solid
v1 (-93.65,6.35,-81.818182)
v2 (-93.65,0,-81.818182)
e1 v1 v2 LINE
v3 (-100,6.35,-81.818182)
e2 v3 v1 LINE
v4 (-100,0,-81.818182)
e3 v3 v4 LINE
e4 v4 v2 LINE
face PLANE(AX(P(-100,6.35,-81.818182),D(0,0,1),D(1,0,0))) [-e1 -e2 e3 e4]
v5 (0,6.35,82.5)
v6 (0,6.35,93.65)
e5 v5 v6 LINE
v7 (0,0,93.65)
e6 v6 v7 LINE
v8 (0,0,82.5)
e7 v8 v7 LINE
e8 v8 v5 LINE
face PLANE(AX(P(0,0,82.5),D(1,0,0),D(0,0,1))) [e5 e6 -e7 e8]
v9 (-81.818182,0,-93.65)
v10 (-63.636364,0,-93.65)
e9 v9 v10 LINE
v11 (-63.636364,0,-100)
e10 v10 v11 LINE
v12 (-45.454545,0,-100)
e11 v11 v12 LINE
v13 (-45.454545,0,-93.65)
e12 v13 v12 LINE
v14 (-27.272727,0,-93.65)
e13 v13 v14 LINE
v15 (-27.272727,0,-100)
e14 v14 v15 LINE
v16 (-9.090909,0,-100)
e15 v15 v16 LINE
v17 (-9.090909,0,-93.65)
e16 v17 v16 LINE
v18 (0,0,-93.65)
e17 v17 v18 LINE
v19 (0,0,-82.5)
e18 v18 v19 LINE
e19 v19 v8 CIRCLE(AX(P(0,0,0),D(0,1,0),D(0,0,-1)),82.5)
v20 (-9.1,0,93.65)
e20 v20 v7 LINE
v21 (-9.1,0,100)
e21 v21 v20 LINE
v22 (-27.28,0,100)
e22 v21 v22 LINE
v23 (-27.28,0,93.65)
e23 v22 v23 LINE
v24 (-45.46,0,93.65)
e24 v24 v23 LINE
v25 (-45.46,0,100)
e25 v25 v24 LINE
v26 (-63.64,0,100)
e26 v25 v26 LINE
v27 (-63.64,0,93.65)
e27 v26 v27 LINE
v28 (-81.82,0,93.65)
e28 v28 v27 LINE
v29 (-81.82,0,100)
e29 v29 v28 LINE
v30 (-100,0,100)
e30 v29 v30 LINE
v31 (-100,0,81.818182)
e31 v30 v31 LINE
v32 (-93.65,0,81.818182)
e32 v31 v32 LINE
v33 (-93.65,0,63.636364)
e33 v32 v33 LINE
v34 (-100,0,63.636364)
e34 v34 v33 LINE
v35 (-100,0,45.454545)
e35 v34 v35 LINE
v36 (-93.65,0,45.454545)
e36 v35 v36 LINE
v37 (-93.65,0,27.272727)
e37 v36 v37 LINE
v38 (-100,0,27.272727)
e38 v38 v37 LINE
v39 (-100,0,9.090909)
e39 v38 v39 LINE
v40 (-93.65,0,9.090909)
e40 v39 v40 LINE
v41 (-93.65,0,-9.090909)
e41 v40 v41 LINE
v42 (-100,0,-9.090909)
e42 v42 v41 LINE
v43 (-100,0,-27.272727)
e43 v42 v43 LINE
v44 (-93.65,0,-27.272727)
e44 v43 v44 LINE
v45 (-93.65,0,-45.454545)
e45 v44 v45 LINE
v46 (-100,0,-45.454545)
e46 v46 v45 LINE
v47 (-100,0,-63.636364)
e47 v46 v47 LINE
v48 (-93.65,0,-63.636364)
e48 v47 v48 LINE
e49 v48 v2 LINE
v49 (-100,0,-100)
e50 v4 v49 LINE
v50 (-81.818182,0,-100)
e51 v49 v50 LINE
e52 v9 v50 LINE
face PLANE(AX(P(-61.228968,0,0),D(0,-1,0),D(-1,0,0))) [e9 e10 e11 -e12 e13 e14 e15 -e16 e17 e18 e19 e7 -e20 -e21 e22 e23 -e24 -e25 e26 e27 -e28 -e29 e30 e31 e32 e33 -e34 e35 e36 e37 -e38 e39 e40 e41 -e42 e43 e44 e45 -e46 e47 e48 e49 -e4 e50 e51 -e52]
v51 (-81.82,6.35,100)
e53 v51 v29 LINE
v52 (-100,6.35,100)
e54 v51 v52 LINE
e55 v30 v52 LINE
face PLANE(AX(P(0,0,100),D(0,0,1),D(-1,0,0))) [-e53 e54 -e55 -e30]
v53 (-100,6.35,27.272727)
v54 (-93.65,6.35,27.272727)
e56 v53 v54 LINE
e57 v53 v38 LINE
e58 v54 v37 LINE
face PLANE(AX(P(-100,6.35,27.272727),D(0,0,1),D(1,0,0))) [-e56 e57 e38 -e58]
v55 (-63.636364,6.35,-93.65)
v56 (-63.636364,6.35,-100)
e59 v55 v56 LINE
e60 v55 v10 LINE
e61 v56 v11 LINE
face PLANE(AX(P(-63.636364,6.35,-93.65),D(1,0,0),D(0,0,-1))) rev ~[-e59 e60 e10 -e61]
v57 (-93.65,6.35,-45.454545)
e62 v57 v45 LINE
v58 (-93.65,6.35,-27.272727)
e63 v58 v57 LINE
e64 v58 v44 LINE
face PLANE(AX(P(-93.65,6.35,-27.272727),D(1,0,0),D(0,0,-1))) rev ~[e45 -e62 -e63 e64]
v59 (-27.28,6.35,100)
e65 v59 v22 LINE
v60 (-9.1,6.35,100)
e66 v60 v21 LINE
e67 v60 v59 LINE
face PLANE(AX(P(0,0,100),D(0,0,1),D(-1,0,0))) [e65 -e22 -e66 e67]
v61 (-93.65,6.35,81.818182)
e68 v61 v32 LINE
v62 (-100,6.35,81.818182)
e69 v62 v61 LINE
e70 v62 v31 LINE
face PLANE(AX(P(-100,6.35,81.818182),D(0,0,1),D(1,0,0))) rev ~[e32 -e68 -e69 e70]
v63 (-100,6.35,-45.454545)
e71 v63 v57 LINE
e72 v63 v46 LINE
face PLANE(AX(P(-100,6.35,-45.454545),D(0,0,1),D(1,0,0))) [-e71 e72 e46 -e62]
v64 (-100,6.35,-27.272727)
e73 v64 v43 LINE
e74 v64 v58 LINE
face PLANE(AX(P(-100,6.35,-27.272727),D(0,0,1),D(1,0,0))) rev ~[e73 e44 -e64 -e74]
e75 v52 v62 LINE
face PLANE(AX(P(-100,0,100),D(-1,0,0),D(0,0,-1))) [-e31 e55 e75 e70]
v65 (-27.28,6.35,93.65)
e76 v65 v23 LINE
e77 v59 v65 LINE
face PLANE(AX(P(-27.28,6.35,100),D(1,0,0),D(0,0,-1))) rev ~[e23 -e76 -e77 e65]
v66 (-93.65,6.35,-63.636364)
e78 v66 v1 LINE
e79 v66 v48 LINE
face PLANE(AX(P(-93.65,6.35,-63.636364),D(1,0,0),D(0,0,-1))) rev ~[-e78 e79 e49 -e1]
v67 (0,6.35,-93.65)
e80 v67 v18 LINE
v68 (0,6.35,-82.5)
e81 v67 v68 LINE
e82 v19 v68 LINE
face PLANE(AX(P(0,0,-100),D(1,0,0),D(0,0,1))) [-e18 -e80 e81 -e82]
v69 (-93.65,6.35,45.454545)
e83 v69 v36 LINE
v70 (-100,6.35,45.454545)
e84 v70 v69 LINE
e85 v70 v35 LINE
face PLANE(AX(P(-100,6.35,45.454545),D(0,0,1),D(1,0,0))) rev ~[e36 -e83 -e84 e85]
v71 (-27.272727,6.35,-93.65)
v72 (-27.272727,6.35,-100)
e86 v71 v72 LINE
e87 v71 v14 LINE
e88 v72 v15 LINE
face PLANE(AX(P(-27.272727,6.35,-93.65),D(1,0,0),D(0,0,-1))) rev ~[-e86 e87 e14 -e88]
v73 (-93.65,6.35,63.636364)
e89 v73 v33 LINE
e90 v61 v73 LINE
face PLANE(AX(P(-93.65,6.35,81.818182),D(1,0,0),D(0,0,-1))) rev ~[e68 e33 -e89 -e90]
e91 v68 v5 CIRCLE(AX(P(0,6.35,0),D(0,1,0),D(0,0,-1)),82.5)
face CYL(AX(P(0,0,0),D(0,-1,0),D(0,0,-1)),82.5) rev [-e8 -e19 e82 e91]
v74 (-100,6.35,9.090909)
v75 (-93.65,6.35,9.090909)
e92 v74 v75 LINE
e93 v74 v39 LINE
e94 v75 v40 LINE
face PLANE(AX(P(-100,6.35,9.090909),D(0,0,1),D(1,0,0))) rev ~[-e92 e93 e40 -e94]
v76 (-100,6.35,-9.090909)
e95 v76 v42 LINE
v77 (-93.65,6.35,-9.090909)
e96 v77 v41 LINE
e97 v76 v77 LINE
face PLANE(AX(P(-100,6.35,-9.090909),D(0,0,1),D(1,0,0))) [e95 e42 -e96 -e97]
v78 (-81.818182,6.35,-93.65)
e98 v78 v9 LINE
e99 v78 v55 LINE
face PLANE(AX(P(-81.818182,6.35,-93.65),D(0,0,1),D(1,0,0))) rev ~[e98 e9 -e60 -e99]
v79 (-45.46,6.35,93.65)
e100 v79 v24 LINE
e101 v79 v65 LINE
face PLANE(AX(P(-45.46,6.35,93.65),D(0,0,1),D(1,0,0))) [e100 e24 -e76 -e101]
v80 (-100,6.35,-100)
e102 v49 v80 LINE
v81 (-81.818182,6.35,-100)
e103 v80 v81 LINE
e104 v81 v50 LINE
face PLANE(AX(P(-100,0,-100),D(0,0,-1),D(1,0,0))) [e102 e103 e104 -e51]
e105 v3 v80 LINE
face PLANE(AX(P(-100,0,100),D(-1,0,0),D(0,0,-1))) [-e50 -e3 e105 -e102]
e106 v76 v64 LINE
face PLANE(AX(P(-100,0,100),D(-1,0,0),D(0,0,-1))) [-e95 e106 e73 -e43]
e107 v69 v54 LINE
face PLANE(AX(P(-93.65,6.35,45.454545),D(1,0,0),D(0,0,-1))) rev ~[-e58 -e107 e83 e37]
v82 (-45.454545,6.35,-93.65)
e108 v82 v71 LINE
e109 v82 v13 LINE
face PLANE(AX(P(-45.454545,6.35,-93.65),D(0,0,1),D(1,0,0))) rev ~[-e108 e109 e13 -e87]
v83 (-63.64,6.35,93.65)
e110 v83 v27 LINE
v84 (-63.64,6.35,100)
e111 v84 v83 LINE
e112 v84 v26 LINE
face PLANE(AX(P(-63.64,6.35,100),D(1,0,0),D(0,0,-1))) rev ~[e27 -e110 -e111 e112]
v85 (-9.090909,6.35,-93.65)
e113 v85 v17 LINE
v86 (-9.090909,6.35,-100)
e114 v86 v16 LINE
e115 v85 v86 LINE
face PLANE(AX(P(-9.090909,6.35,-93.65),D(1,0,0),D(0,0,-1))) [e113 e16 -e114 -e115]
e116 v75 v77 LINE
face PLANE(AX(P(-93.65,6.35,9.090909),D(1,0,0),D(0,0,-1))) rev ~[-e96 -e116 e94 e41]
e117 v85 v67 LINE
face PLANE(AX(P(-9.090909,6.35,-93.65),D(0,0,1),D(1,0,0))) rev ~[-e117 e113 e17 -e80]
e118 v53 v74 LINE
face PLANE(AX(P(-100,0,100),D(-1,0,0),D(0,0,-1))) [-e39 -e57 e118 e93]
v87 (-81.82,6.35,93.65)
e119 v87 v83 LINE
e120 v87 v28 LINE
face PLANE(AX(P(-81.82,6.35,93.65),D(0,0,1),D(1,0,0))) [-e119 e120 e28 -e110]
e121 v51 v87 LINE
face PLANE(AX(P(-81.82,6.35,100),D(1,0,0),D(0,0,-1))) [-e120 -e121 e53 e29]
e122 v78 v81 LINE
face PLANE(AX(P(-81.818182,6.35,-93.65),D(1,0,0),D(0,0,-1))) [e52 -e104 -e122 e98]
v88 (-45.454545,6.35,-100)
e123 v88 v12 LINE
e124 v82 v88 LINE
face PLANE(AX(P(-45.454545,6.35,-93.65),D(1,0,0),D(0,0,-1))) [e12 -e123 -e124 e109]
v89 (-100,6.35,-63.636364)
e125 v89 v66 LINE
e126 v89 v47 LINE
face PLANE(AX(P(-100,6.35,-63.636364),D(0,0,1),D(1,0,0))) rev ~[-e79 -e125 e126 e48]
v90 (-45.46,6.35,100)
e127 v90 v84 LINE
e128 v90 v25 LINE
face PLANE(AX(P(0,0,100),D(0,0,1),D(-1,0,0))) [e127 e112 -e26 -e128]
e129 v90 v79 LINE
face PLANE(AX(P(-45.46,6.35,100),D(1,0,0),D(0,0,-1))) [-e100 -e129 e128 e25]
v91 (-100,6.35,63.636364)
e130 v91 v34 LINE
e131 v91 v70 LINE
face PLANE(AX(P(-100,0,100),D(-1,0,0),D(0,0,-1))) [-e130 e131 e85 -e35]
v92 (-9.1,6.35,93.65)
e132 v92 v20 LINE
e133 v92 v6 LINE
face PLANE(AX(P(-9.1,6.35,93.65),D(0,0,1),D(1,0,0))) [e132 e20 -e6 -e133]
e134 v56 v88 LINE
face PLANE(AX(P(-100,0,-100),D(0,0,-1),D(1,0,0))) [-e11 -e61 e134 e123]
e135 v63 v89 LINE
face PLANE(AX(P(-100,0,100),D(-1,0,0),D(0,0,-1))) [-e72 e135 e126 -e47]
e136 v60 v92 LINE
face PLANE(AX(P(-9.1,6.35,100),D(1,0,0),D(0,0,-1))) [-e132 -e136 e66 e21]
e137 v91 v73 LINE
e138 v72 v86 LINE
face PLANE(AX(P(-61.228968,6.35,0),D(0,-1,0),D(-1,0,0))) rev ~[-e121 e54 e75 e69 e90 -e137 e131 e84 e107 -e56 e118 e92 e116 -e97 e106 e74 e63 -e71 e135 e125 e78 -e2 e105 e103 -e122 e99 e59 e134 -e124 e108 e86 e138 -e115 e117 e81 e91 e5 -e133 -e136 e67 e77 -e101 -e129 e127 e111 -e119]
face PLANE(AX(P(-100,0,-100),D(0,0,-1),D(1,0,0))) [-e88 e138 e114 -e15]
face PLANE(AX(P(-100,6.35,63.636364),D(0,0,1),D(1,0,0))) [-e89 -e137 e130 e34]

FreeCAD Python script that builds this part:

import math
import FreeCAD as App
import Part
import Sketcher
Q = App.Units.Quantity

doc = App.newDocument("Part")
body = doc.addObject("PartDesign::Body", "Body")

sketch1 = body.newObject("Sketcher::SketchObject", "Sketch")
sketch1.AttachmentSupport = (doc.getObject("XZ_Plane"), [""])
sketch1.MapMode = "FlatFace"
sketch1.addGeometry(Part.LineSegment(App.Vector(0, 100, 0), App.Vector(0, 82, 0)), False)
sketch1.addGeometry(Part.ArcOfCircle(Part.Circle(App.Vector(0, 0, 0), App.Vector(0, 0, 1), 82), math.radians(90), math.radians(270)), False)
sketch1.addGeometry(Part.LineSegment(App.Vector(0, -82, 0), App.Vector(0, -100, 0)), False)
sketch1.addGeometry(Part.LineSegment(App.Vector(0, -100, 0), App.Vector(-100, -100, 0)), False)
sketch1.addGeometry(Part.LineSegment(App.Vector(-100, -100, 0), App.Vector(-100, 100, 0)), False)
sketch1.addGeometry(Part.LineSegment(App.Vector(-100, 100, 0), App.Vector(0, 100, 0)), False)
sketch1.addConstraint(Sketcher.Constraint("Coincident", 0, 2, 1, 1))
sketch1.addConstraint(Sketcher.Constraint("Coincident", 1, 2, 2, 1))
sketch1.addConstraint(Sketcher.Constraint("Coincident", 2, 2, 3, 1))
sketch1.addConstraint(Sketcher.Constraint("Coincident", 3, 2, 4, 1))
sketch1.addConstraint(Sketcher.Constraint("Coincident", 4, 2, 5, 1))
sketch1.addConstraint(Sketcher.Constraint("Coincident", 5, 2, 0, 1))
sketch1.addConstraint(Sketcher.Constraint("Vertical", 0))
sketch1.addConstraint(Sketcher.Constraint("Vertical", 2))
sketch1.addConstraint(Sketcher.Constraint("Horizontal", 3))
sketch1.addConstraint(Sketcher.Constraint("Vertical", 4))
sketch1.addConstraint(Sketcher.Constraint("Horizontal", 5))
sketch1.addConstraint(Sketcher.Constraint("Coincident", 1, 3, -1, 1))
sketch1.addConstraint(Sketcher.Constraint("Symmetric", 2, 2, 5, 2, -1, 1))
sketch1.addConstraint(Sketcher.Constraint("PointOnObject", 0, 2, -2))
sketch1.addConstraint(Sketcher.Constraint("Radius", 1, Q("82.5 mm")))
sketch1.addConstraint(Sketcher.Constraint("DistanceX", 3, 2, 3, 1, Q("100 mm")))
sketch1.addConstraint(Sketcher.Constraint("DistanceY", 4, 1, 4, 2, Q("200 mm")))
pad1 = body.newObject("PartDesign::Pad", "Pad")
pad1.Profile = sketch1
pad1.Length = 6.35
pad1.Reversed = True

sketch2 = body.newObject("Sketcher::SketchObject", "Sketch001")
sketch2.AttachmentSupport = (doc.getObject("XZ_Plane"), [""])
sketch2.MapMode = "FlatFace"
sketch2.AttachmentOffset = App.Placement(App.Vector(0, 0, -6.35), App.Rotation())
sketch2.addGeometry(Part.LineSegment(App.Vector(-82, 94, 0), App.Vector(-82, 100, 0)), False)
sketch2.addGeometry(Part.LineSegment(App.Vector(-82, 100, 0), App.Vector(-64, 100, 0)), False)
sketch2.addGeometry(Part.LineSegment(App.Vector(-64, 100, 0), App.Vector(-64, 94, 0)), False)
sketch2.addGeometry(Part.LineSegment(App.Vector(-64, 94, 0), App.Vector(-82, 94, 0)), False)
sketch2.addGeometry(Part.LineSegment(App.Vector(-45, 94, 0), App.Vector(-45, 100, 0)), False)
sketch2.addGeometry(Part.LineSegment(App.Vector(-45, 100, 0), App.Vector(-27, 100, 0)), False)
sketch2.addGeometry(Part.LineSegment(App.Vector(-27, 100, 0), App.Vector(-27, 94, 0)), False)
sketch2.addGeometry(Part.LineSegment(App.Vector(-27, 94, 0), App.Vector(-45, 94, 0)), False)
sketch2.addGeometry(Part.LineSegment(App.Vector(-9, 94, 0), App.Vector(-9, 100, 0)), False)
sketch2.addGeometry(Part.LineSegment(App.Vector(-9, 100, 0), App.Vector(9, 100, 0)), False)
sketch2.addGeometry(Part.LineSegment(App.Vector(9, 100, 0), App.Vector(9, 94, 0)), False)
sketch2.addGeometry(Part.LineSegment(App.Vector(9, 94, 0), App.Vector(-9, 94, 0)), False)
sketch2.addGeometry(Part.LineSegment(App.Vector(-100, 64, 0), App.Vector(-100, 82, 0)), False)
sketch2.addGeometry(Part.LineSegment(App.Vector(-100, 82, 0), App.Vector(-94, 82, 0)), False)
sketch2.addGeometry(Part.LineSegment(App.Vector(-94, 82, 0), App.Vector(-94, 64, 0)), False)
sketch2.addGeometry(Part.LineSegment(App.Vector(-94, 64, 0), App.Vector(-100, 64, 0)), False)
sketch2.addGeometry(Part.LineSegment(App.Vector(-100, 27, 0), App.Vector(-100, 45, 0)), False)
sketch2.addGeometry(Part.LineSegment(App.Vector(-100, 45, 0), App.Vector(-94, 45, 0)), False)
sketch2.addGeometry(Part.LineSegment(App.Vector(-94, 45, 0), App.Vector(-94, 27, 0)), False)
sketch2.addGeometry(Part.LineSegment(App.Vector(-94, 27, 0), App.Vector(-100, 27, 0)), False)
sketch2.addGeometry(Part.LineSegment(App.Vector(-100, -9, 0), App.Vector(-100, 9, 0)), False)
sketch2.addGeometry(Part.LineSegment(App.Vector(-100, 9, 0), App.Vector(-94, 9, 0)), False)
sketch2.addGeometry(Part.LineSegment(App.Vector(-94, 9, 0), App.Vector(-94, -9, 0)), False)
sketch2.addGeometry(Part.LineSegment(App.Vector(-94, -9, 0), App.Vector(-100, -9, 0)), False)
sketch2.addGeometry(Part.LineSegment(App.Vector(-100, -45, 0), App.Vector(-100, -27, 0)), False)
sketch2.addGeometry(Part.LineSegment(App.Vector(-100, -27, 0), App.Vector(-94, -27, 0)), False)
sketch2.addGeometry(Part.LineSegment(App.Vector(-94, -27, 0), App.Vector(-94, -45, 0)), False)
sketch2.addGeometry(Part.LineSegment(App.Vector(-94, -45, 0), App.Vector(-100, -45, 0)), False)
sketch2.addGeometry(Part.LineSegment(App.Vector(-100, -82, 0), App.Vector(-100, -64, 0)), False)
sketch2.addGeometry(Part.LineSegment(App.Vector(-100, -64, 0), App.Vector(-94, -64, 0)), False)
sketch2.addGeometry(Part.LineSegment(App.Vector(-94, -64, 0), App.Vector(-94, -82, 0)), False)
sketch2.addGeometry(Part.LineSegment(App.Vector(-94, -82, 0), App.Vector(-100, -82, 0)), False)
sketch2.addGeometry(Part.LineSegment(App.Vector(-82, -100, 0), App.Vector(-82, -94, 0)), False)
sketch2.addGeometry(Part.LineSegment(App.Vector(-82, -94, 0), App.Vector(-64, -94, 0)), False)
sketch2.addGeometry(Part.LineSegment(App.Vector(-64, -94, 0), App.Vector(-64, -100, 0)), False)
sketch2.addGeometry(Part.LineSegment(App.Vector(-64, -100, 0), App.Vector(-82, -100, 0)), False)
sketch2.addGeometry(Part.LineSegment(App.Vector(-45, -100, 0), App.Vector(-45, -94, 0)), False)
sketch2.addGeometry(Part.LineSegment(App.Vector(-45, -94, 0), App.Vector(-27, -94, 0)), False)
sketch2.addGeometry(Part.LineSegment(App.Vector(-27, -94, 0), App.Vector(-27, -100, 0)), False)
sketch2.addGeometry(Part.LineSegment(App.Vector(-27, -100, 0), App.Vector(-45, -100, 0)), False)
sketch2.addGeometry(Part.LineSegment(App.Vector(-9, -100, 0), App.Vector(-9, -94, 0)), False)
sketch2.addGeometry(Part.LineSegment(App.Vector(-9, -94, 0), App.Vector(9, -94, 0)), False)
sketch2.addGeometry(Part.LineSegment(App.Vector(9, -94, 0), App.Vector(9, -100, 0)), False)
sketch2.addGeometry(Part.LineSegment(App.Vector(9, -100, 0), App.Vector(-9, -100, 0)), False)
sketch2.addConstraint(Sketcher.Constraint("Coincident", 0, 2, 1, 1))
sketch2.addConstraint(Sketcher.Constraint("Coincident", 1, 2, 2, 1))
sketch2.addConstraint(Sketcher.Constraint("Coincident", 2, 2, 3, 1))
sketch2.addConstraint(Sketcher.Constraint("Coincident", 3, 2, 0, 1))
sketch2.addConstraint(Sketcher.Constraint("Coincident", 4, 2, 5, 1))
sketch2.addConstraint(Sketcher.Constraint("Coincident", 5, 2, 6, 1))
sketch2.addConstraint(Sketcher.Constraint("Coincident", 6, 2, 7, 1))
sketch2.addConstraint(Sketcher.Constraint("Coincident", 7, 2, 4, 1))
sketch2.addConstraint(Sketcher.Constraint("Coincident", 8, 2, 9, 1))
sketch2.addConstraint(Sketcher.Constraint("Coincident", 9, 2, 10, 1))
sketch2.addConstraint(Sketcher.Constraint("Coincident", 10, 2, 11, 1))
sketch2.addConstraint(Sketcher.Constraint("Coincident", 11, 2, 8, 1))
sketch2.addConstraint(Sketcher.Constraint("Coincident", 12, 2, 13, 1))
sketch2.addConstraint(Sketcher.Constraint("Coincident", 13, 2, 14, 1))
sketch2.addConstraint(Sketcher.Constraint("Coincident", 14, 2, 15, 1))
sketch2.addConstraint(Sketcher.Constraint("Coincident", 15, 2, 12, 1))
sketch2.addConstraint(Sketcher.Constraint("Coincident", 16, 2, 17, 1))
sketch2.addConstraint(Sketcher.Constraint("Coincident", 17, 2, 18, 1))
sketch2.addConstraint(Sketcher.Constraint("Coincident", 18, 2, 19, 1))
sketch2.addConstraint(Sketcher.Constraint("Coincident", 19, 2, 16, 1))
sketch2.addConstraint(Sketcher.Constraint("Coincident", 20, 2, 21, 1))
sketch2.addConstraint(Sketcher.Constraint("Coincident", 21, 2, 22, 1))
sketch2.addConstraint(Sketcher.Constraint("Coincident", 22, 2, 23, 1))
sketch2.addConstraint(Sketcher.Constraint("Coincident", 23, 2, 20, 1))
sketch2.addConstraint(Sketcher.Constraint("Coincident", 24, 2, 25, 1))
sketch2.addConstraint(Sketcher.Constraint("Coincident", 25, 2, 26, 1))
sketch2.addConstraint(Sketcher.Constraint("Coincident", 26, 2, 27, 1))
sketch2.addConstraint(Sketcher.Constraint("Coincident", 27, 2, 24, 1))
sketch2.addConstraint(Sketcher.Constraint("Coincident", 28, 2, 29, 1))
sketch2.addConstraint(Sketcher.Constraint("Coincident", 29, 2, 30, 1))
sketch2.addConstraint(Sketcher.Constraint("Coincident", 30, 2, 31, 1))
sketch2.addConstraint(Sketcher.Constraint("Coincident", 31, 2, 28, 1))
sketch2.addConstraint(Sketcher.Constraint("Coincident", 32, 2, 33, 1))
sketch2.addConstraint(Sketcher.Constraint("Coincident", 33, 2, 34, 1))
sketch2.addConstraint(Sketcher.Constraint("Coincident", 34, 2, 35, 1))
sketch2.addConstraint(Sketcher.Constraint("Coincident", 35, 2, 32, 1))
sketch2.addConstraint(Sketcher.Constraint("Coincident", 36, 2, 37, 1))
sketch2.addConstraint(Sketcher.Constraint("Coincident", 37, 2, 38, 1))
sketch2.addConstraint(Sketcher.Constraint("Coincident", 38, 2, 39, 1))
sketch2.addConstraint(Sketcher.Constraint("Coincident", 39, 2, 36, 1))
sketch2.addConstraint(Sketcher.Constraint("Coincident", 40, 2, 41, 1))
sketch2.addConstraint(Sketcher.Constraint("Coincident", 41, 2, 42, 1))
sketch2.addConstraint(Sketcher.Constraint("Coincident", 42, 2, 43, 1))
sketch2.addConstraint(Sketcher.Constraint("Coincident", 43, 2, 40, 1))
sketch2.addConstraint(Sketcher.Constraint("Vertical", 0))
sketch2.addConstraint(Sketcher.Constraint("Horizontal", 1))
sketch2.addConstraint(Sketcher.Constraint("Vertical", 2))
sketch2.addConstraint(Sketcher.Constraint("Horizontal", 3))
sketch2.addConstraint(Sketcher.Constraint("Vertical", 4))
sketch2.addConstraint(Sketcher.Constraint("Horizontal", 5))
sketch2.addConstraint(Sketcher.Constraint("Vertical", 6))
sketch2.addConstraint(Sketcher.Constraint("Horizontal", 7))
sketch2.addConstraint(Sketcher.Constraint("Vertical", 8))
sketch2.addConstraint(Sketcher.Constraint("Horizontal", 9))
sketch2.addConstraint(Sketcher.Constraint("Vertical", 10))
sketch2.addConstraint(Sketcher.Constraint("Horizontal", 11))
sketch2.addConstraint(Sketcher.Constraint("Vertical", 12))
sketch2.addConstraint(Sketcher.Constraint("Horizontal", 13))
sketch2.addConstraint(Sketcher.Constraint("Vertical", 14))
sketch2.addConstraint(Sketcher.Constraint("Horizontal", 15))
sketch2.addConstraint(Sketcher.Constraint("Vertical", 16))
sketch2.addConstraint(Sketcher.Constraint("Horizontal", 17))
sketch2.addConstraint(Sketcher.Constraint("Vertical", 18))
sketch2.addConstraint(Sketcher.Constraint("Horizontal", 19))
sketch2.addConstraint(Sketcher.Constraint("Vertical", 20))
sketch2.addConstraint(Sketcher.Constraint("Horizontal", 21))
sketch2.addConstraint(Sketcher.Constraint("Vertical", 22))
sketch2.addConstraint(Sketcher.Constraint("Horizontal", 23))
sketch2.addConstraint(Sketcher.Constraint("Vertical", 24))
sketch2.addConstraint(Sketcher.Constraint("Horizontal", 25))
sketch2.addConstraint(Sketcher.Constraint("Vertical", 26))
sketch2.addConstraint(Sketcher.Constraint("Horizontal", 27))
sketch2.addConstraint(Sketcher.Constraint("Vertical", 28))
sketch2.addConstraint(Sketcher.Constraint("Horizontal", 29))
sketch2.addConstraint(Sketcher.Constraint("Vertical", 30))
sketch2.addConstraint(Sketcher.Constraint("Horizontal", 31))
sketch2.addConstraint(Sketcher.Constraint("Vertical", 32))
sketch2.addConstraint(Sketcher.Constraint("Horizontal", 33))
sketch2.addConstraint(Sketcher.Constraint("Vertical", 34))
sketch2.addConstraint(Sketcher.Constraint("Horizontal", 35))
sketch2.addConstraint(Sketcher.Constraint("Vertical", 36))
sketch2.addConstraint(Sketcher.Constraint("Horizontal", 37))
sketch2.addConstraint(Sketcher.Constraint("Vertical", 38))
sketch2.addConstraint(Sketcher.Constraint("Horizontal", 39))
sketch2.addConstraint(Sketcher.Constraint("Vertical", 40))
sketch2.addConstraint(Sketcher.Constraint("Horizontal", 41))
sketch2.addConstraint(Sketcher.Constraint("Vertical", 42))
sketch2.addConstraint(Sketcher.Constraint("Horizontal", 43))
sketch2.addConstraint(Sketcher.Constraint("Symmetric", 19, 2, 24, 2, -1))
sketch2.addConstraint(Sketcher.Constraint("Symmetric", 17, 2, 26, 2, -1))
sketch2.addConstraint(Sketcher.Constraint("Symmetric", 15, 2, 28, 2, -1))
sketch2.addConstraint(Sketcher.Constraint("Symmetric", 13, 2, 30, 2, -1))
sketch2.addConstraint(Sketcher.Constraint("Horizontal", 1, 2, 4, 2))
sketch2.addConstraint(Sketcher.Constraint("Horizontal", 3, 2, 6, 2))
sketch2.addConstraint(Sketcher.Constraint("Horizontal", 5, 2, 8, 2))
sketch2.addConstraint(Sketcher.Constraint("Horizontal", 7, 2, 10, 2))
sketch2.addConstraint(Sketcher.Constraint("Horizontal", 33, 2, 36, 2))
sketch2.addConstraint(Sketcher.Constraint("Horizontal", 35, 2, 38, 2))
sketch2.addConstraint(Sketcher.Constraint("Horizontal", 37, 2, 40, 2))
sketch2.addConstraint(Sketcher.Constraint("Horizontal", 39, 2, 42, 2))
sketch2.addConstraint(Sketcher.Constraint("Vertical", 15, 2, 16, 2))
sketch2.addConstraint(Sketcher.Constraint("Vertical", 14, 2, 17, 2))
sketch2.addConstraint(Sketcher.Constraint("Vertical", 19, 2, 20, 2))
sketch2.addConstraint(Sketcher.Constraint("Vertical", 18, 2, 21, 2))
sketch2.addConstraint(Sketcher.Constraint("Equal", 3, 5))
sketch2.addConstraint(Sketcher.Constraint("Equal", 7, 9))
sketch2.addConstraint(Sketcher.Constraint("Equal", 35, 37))
sketch2.addConstraint(Sketcher.Constraint("Equal", 11, 41))
sketch2.addConstraint(Sketcher.Constraint("Equal", 31, 0))
sketch2.addConstraint(Sketcher.Constraint("Equal", 39, 12))
sketch2.addConstraint(Sketcher.Constraint("Equal", 14, 16))
sketch2.addConstraint(Sketcher.Constraint("Equal", 18, 20))
sketch2.addConstraint(Sketcher.Constraint("Equal", 10, 32))
sketch2.addConstraint(Sketcher.Constraint("DistanceY", -1, 1, 0, 2, Q("100 mm")))
sketch2.addConstraint(Sketcher.Constraint("DistanceX", 12, 2, -1, 1, Q("100 mm")))
sketch2.addConstraint(Sketcher.Constraint("DistanceY", 34, 2, -1, 1, Q("100 mm")))
sketch2.addConstraint(Sketcher.Constraint("DistanceX", 1, 1, 1, 2, Q("18.18 mm")))
sketch2.addConstraint(Sketcher.Constraint("DistanceX", 13, 1, 13, 2, Q("6.35 mm")))
sketch2.addConstraint(Sketcher.Constraint("DistanceX", 8, 2, -1, 1, Q("9.1 mm")))
sketch2.addConstraint(Sketcher.Constraint("DistanceX", 0, 2, -1, 1, Q("81.82 mm")))
sketch2.addConstraint(Sketcher.Constraint("DistanceX", 4, 2, -1, 1, Q("45.46 mm")))
sketch2.addConstraint(Sketcher.Constraint("DistanceX", 33, 1, 33, 2, Q("18.181818 mm")))
sketch2.addConstraint(Sketcher.Constraint("DistanceY", -1, 1, 12, 2, Q("81.818182 mm")))
sketch2.addConstraint(Sketcher.Constraint("DistanceY", -1, 1, 20, 2, Q("9.090909 mm")))
sketch2.addConstraint(Sketcher.Constraint("DistanceX", 32, 2, -1, 1, Q("81.818182 mm")))
sketch2.addConstraint(Sketcher.Constraint("DistanceX", 40, 2, -1, 1, Q("9.090909 mm")))
sketch2.addConstraint(Sketcher.Constraint("DistanceY", 16, 2, 15, 2, Q("18.181818 mm")))
sketch2.addConstraint(Sketcher.Constraint("DistanceX", 33, 2, 36, 2, Q("18.181818 mm")))
pocket1 = body.newObject("PartDesign::Pocket", "Pocket")
pocket1.Profile = sketch2
pocket1.Length = 6.35
pocket1.Reversed = True

doc.recompute()
